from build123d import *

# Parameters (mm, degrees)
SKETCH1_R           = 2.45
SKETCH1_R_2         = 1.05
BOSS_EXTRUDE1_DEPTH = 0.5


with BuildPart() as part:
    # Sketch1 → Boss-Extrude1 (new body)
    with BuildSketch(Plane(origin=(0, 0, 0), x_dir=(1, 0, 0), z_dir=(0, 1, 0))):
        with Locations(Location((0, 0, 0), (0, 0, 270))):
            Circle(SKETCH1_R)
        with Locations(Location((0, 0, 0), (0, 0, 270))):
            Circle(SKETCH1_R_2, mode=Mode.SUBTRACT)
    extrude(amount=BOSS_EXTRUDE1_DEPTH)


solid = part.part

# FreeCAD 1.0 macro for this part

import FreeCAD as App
import Part
import Sketcher

doc = App.newDocument("Part")
params = doc.addObject("Spreadsheet::Sheet", "Params")
for row, (alias, value) in enumerate([
    ("sketch1_diameter", "4.9 mm"),
    ("sketch1_diameter2", "2.1 mm"),
    ("pad1_length", "0.5 mm"),
], start=1):
    params.set(f"A{row}", alias)
    params.set(f"B{row}", "=" + value)
    params.setAlias(f"B{row}", alias)

body = doc.addObject("PartDesign::Body", "Body")

sketch1 = body.newObject("Sketcher::SketchObject", "Sketch")
sketch1.AttachmentSupport = (doc.getObject("XZ_Plane"), [""])
sketch1.MapMode = "FlatFace"
sketch1.addGeometry([
    Part.Circle(App.Vector(0, 0, 0), App.Vector(0, 0, 1), 2.5),
    Part.Circle(App.Vector(0, 0, 0), App.Vector(0, 0, 1), 1.1),
], False)
sketch1.addConstraint([
    Sketcher.Constraint("Coincident", 0, 3, -1, 1),
    Sketcher.Constraint("Coincident", 1, 3, -1, 1),
    Sketcher.Constraint("Diameter", 0, 4.9),
    Sketcher.Constraint("Diameter", 1, 2.1),
])
sketch1.setExpression("Constraints[2]", "Params.sketch1_diameter")
sketch1.setExpression("Constraints[3]", "Params.sketch1_diameter2")
pad1 = body.newObject("PartDesign::Pad", "Pad")
pad1.Profile = sketch1
pad1.setExpression("Length", "Params.pad1_length")
pad1.Reversed = True

doc.recompute()
